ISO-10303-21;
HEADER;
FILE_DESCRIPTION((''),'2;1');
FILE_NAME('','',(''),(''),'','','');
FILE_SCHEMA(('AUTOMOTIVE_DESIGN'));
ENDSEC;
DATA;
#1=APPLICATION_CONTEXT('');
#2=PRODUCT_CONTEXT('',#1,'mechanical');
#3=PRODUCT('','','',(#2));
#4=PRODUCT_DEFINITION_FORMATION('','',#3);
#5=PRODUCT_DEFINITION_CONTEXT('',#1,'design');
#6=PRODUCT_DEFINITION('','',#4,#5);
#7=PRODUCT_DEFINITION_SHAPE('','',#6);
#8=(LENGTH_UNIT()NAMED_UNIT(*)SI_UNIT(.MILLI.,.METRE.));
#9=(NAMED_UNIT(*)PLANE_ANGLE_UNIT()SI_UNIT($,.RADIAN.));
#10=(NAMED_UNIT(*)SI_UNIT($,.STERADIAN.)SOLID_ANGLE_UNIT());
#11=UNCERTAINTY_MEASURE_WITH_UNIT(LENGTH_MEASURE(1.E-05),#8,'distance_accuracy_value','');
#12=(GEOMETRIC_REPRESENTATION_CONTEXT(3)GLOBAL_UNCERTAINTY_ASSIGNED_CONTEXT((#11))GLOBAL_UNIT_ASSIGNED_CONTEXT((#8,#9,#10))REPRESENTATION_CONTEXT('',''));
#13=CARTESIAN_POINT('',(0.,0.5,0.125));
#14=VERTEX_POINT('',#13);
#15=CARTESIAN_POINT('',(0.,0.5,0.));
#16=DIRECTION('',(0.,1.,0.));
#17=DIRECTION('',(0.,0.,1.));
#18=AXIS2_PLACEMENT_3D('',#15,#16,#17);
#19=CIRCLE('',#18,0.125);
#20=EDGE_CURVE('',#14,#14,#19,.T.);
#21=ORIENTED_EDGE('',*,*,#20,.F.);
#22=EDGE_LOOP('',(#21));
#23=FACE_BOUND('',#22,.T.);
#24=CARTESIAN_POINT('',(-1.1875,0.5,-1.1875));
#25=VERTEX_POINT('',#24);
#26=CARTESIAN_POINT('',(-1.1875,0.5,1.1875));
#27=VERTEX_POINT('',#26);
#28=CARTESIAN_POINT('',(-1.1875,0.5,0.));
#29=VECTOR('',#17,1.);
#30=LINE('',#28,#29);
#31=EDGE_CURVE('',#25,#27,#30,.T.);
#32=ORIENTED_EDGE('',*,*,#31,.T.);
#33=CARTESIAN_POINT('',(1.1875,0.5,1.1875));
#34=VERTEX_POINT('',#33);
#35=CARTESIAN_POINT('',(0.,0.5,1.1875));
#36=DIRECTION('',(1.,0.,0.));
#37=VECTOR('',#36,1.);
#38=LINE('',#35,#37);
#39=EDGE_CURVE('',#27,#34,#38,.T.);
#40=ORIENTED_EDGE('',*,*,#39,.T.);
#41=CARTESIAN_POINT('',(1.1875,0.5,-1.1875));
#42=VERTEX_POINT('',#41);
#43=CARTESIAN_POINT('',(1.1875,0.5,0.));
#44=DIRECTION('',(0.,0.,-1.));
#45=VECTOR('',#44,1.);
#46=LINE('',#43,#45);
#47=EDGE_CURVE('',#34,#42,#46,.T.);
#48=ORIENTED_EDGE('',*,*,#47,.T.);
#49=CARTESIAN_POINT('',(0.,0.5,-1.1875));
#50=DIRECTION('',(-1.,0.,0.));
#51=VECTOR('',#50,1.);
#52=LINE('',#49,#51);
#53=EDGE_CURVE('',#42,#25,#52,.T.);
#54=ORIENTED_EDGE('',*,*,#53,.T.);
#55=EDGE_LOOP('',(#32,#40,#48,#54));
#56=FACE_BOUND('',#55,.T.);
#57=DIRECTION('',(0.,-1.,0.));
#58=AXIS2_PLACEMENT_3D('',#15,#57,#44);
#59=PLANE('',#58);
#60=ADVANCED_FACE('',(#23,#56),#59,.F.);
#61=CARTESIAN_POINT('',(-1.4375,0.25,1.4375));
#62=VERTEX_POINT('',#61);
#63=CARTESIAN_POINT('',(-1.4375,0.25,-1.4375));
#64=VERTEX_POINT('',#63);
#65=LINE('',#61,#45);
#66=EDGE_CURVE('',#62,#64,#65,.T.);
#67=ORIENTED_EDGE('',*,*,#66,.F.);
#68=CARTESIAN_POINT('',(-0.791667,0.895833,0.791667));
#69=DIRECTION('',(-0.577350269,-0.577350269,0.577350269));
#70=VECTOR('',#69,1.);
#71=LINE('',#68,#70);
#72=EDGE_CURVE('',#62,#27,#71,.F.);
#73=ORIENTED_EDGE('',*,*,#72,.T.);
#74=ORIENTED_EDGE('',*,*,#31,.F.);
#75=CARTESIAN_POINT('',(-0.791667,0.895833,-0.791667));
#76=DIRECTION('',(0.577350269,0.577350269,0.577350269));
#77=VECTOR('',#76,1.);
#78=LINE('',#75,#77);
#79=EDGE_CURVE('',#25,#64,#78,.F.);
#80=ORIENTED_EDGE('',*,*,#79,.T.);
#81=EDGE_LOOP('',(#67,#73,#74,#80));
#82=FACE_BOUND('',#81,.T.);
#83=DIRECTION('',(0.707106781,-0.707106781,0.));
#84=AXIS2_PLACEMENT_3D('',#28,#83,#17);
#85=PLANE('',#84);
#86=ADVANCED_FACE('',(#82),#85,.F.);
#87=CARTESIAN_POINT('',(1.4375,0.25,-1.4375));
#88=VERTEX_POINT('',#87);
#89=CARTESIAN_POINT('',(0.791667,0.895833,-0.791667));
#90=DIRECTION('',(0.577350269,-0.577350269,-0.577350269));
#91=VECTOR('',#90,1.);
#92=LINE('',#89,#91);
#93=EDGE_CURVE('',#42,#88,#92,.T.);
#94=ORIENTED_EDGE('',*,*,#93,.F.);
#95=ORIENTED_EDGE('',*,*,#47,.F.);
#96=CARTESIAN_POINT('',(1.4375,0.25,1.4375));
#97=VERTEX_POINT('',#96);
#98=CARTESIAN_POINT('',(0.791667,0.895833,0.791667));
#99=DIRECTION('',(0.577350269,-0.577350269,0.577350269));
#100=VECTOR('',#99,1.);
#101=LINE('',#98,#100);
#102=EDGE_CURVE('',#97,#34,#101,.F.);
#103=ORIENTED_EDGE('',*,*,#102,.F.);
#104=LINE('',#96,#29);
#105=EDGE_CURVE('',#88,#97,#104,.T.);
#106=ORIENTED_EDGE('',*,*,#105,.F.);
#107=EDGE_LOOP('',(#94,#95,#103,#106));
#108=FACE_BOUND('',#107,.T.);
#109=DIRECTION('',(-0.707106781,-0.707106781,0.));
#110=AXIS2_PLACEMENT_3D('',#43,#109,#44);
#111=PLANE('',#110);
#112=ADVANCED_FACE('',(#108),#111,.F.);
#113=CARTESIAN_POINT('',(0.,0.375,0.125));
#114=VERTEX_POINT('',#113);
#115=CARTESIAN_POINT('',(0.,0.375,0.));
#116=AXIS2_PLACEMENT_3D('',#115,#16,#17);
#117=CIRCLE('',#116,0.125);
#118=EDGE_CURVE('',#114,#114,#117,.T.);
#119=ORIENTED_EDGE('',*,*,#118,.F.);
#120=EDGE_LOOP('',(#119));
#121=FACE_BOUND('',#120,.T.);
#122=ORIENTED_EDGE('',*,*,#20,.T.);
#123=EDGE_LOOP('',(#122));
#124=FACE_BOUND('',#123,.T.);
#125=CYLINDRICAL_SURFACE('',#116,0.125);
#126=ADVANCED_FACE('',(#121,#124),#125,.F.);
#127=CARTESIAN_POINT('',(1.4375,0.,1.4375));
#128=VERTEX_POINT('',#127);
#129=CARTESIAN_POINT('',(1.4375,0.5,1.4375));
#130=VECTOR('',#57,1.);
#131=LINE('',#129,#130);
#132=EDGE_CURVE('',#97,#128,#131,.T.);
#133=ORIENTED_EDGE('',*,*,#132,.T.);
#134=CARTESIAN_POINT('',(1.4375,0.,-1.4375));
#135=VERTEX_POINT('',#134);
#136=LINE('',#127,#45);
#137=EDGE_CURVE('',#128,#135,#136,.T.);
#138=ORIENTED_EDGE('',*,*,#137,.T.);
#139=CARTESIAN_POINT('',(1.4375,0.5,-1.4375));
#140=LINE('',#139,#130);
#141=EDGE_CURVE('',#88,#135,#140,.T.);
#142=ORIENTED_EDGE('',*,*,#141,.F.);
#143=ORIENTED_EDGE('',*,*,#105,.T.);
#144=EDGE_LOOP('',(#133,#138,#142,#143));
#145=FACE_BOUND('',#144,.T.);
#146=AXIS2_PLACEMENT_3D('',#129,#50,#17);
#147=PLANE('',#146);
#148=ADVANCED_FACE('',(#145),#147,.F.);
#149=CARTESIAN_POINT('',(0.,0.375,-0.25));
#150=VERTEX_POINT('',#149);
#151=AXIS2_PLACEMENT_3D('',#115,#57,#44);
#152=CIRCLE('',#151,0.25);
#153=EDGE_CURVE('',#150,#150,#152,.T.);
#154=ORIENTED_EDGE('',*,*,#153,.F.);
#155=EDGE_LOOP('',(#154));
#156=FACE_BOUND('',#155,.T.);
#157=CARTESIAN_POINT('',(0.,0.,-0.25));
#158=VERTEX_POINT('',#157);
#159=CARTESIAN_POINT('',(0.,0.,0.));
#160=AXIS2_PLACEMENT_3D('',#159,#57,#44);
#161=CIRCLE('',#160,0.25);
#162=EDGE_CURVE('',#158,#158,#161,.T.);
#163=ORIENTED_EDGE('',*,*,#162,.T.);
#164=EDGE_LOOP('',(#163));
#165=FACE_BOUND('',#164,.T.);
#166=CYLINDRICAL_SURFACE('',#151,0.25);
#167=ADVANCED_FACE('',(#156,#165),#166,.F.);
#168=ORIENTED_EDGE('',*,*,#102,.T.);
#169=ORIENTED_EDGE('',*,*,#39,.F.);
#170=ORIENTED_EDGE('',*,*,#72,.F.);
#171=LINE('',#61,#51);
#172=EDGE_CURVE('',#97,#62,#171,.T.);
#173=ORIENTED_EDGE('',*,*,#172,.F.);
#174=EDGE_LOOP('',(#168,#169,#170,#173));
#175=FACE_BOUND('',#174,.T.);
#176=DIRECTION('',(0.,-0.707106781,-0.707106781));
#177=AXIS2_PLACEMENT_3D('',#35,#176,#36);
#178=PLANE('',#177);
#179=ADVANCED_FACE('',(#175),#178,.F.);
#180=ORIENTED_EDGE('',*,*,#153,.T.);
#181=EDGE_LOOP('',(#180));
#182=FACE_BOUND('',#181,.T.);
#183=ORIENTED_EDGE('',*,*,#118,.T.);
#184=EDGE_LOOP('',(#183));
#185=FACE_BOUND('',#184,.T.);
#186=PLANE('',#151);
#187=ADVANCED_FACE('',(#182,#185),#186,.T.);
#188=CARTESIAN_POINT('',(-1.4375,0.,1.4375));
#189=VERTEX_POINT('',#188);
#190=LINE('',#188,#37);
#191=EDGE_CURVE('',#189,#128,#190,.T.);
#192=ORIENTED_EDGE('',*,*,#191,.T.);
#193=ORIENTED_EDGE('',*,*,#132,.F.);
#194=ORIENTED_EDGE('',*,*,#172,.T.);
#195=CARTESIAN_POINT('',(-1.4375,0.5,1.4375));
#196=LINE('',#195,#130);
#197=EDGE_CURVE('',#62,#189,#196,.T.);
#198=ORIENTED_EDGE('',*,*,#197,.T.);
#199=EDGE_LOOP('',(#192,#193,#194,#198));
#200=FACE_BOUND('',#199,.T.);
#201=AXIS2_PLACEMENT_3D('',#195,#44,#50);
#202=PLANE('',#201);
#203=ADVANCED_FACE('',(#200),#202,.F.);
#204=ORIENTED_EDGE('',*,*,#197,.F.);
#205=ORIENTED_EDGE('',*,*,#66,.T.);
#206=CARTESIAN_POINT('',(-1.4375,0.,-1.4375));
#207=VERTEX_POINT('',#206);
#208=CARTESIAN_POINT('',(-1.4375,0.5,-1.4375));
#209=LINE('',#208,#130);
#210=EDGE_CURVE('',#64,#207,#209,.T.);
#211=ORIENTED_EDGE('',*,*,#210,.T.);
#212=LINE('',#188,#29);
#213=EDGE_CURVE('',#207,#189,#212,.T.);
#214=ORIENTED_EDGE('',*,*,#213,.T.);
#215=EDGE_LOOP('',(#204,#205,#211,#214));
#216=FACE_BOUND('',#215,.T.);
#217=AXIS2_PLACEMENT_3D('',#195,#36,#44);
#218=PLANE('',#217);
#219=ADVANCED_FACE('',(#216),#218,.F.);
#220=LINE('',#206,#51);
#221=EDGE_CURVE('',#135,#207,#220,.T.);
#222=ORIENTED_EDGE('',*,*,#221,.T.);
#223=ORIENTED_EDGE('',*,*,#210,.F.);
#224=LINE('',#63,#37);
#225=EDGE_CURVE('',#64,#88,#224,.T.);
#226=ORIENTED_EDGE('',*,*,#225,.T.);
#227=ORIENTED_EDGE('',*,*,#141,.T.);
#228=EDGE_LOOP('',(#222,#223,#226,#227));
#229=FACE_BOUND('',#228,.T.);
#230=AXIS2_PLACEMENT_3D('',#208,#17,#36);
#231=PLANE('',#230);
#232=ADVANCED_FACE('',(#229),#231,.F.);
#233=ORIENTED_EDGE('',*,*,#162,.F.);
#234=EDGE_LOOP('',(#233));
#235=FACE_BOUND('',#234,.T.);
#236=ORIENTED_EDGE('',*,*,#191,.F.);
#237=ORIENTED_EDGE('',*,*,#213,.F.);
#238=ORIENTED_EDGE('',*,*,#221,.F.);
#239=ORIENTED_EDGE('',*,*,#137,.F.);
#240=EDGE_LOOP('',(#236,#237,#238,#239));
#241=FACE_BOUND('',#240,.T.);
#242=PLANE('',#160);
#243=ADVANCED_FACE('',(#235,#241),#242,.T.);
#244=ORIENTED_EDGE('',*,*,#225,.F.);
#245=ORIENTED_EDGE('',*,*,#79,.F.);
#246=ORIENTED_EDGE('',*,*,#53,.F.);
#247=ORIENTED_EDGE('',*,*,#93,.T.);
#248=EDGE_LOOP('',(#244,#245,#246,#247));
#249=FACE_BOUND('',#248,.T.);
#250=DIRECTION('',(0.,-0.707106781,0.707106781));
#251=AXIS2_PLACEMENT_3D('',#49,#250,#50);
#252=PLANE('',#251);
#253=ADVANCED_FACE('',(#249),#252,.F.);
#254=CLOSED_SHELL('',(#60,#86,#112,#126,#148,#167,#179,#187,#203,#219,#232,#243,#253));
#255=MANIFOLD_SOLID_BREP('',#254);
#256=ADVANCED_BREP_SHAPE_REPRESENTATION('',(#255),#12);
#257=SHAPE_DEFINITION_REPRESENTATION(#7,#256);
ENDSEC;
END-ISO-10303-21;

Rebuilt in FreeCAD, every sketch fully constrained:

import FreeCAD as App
import Part
import Sketcher
from FreeCAD import Vector


def edges_at(feature, points):
    """Names of the edges that pass closest to the given points."""
    edges = feature.Shape.Edges
    near = lambda p: min(range(len(edges)), key=lambda i: edges[i].distToShape(Part.Vertex(*p))[0])
    return sorted({f"Edge{near(p) + 1}" for p in points})

doc = App.newDocument("Part")
body = doc.addObject("PartDesign::Body", "Body")

# Sketch on XZ plane
sketch1 = body.newObject("Sketcher::SketchObject", "Sketch")
sketch1.AttachmentSupport = (doc.getObject("XZ_Plane"), [""])
sketch1.MapMode = "FlatFace"
sketch1.addGeometry(Part.LineSegment(Vector(-1.4, -1.4, 0), Vector(-1.4, 1.4, 0)), False)
sketch1.addGeometry(Part.LineSegment(Vector(-1.4, 1.4, 0), Vector(1.4, 1.4, 0)), False)
sketch1.addGeometry(Part.LineSegment(Vector(1.4, 1.4, 0), Vector(1.4, -1.4, 0)), False)
sketch1.addGeometry(Part.LineSegment(Vector(1.4, -1.4, 0), Vector(-1.4, -1.4, 0)), False)
sketch1.addConstraint(Sketcher.Constraint("Coincident", 0, 2, 1, 1))
sketch1.addConstraint(Sketcher.Constraint("Coincident", 1, 2, 2, 1))
sketch1.addConstraint(Sketcher.Constraint("Coincident", 2, 2, 3, 1))
sketch1.addConstraint(Sketcher.Constraint("Coincident", 3, 2, 0, 1))
sketch1.addConstraint(Sketcher.Constraint("Vertical", 0))
sketch1.addConstraint(Sketcher.Constraint("Horizontal", 1))
sketch1.addConstraint(Sketcher.Constraint("Vertical", 2))
sketch1.addConstraint(Sketcher.Constraint("Horizontal", 3))
sketch1.addConstraint(Sketcher.Constraint("Symmetric", 0, 2, 2, 2, -1, 1))
sketch1.addConstraint(Sketcher.Constraint("Equal", 3, 0))
sketch1.addConstraint(Sketcher.Constraint("DistanceX", 1, 1, 1, 2, 2.875))
pad1 = body.newObject("PartDesign::Pad", "Pad")
pad1.Profile = sketch1
pad1.Length = 0.5
pad1.Reversed = True

# Sketch on XZ plane
sketch2 = body.newObject("Sketcher::SketchObject", "Sketch001")
sketch2.AttachmentSupport = (doc.getObject("XZ_Plane"), [""])
sketch2.MapMode = "FlatFace"
sketch2.AttachmentOffset = App.Placement(Vector(0, 0, -0.5), App.Rotation())
sketch2.addGeometry(Part.Circle(Vector(0, 0, 0), Vector(0, 0, 1), 0.12), False)
sketch2.addConstraint(Sketcher.Constraint("Coincident", 0, 3, -1, 1))
sketch2.addConstraint(Sketcher.Constraint("Diameter", 0, 0.25))
pocket1 = body.newObject("PartDesign::Pocket", "Pocket")
pocket1.Profile = sketch2
pocket1.Length = 0.125
pocket1.Reversed = True

# Sketch on XZ plane
sketch3 = body.newObject("Sketcher::SketchObject", "Sketch002")
sketch3.AttachmentSupport = (doc.getObject("XZ_Plane"), [""])
sketch3.MapMode = "FlatFace"
sketch3.addGeometry(Part.Circle(Vector(0, 0, 0), Vector(0, 0, 1), 0.25), False)
sketch3.addConstraint(Sketcher.Constraint("Coincident", 0, 3, -1, 1))
sketch3.addConstraint(Sketcher.Constraint("Diameter", 0, 0.5))
pocket2 = body.newObject("PartDesign::Pocket", "Pocket001")
pocket2.Profile = sketch3
pocket2.Length = 0.375
doc.recompute()

chamfer = body.newObject("PartDesign::Chamfer", "Chamfer")
chamfer.Base = (pocket2, edges_at(pocket2, [
    (-1.438, 0.5, 0),
    (0, 0.5, 1.438),
    (1.438, 0.5, 0),
    (0, 0.5, -1.438),
]))
chamfer.Size = 0.25

doc.recompute()
